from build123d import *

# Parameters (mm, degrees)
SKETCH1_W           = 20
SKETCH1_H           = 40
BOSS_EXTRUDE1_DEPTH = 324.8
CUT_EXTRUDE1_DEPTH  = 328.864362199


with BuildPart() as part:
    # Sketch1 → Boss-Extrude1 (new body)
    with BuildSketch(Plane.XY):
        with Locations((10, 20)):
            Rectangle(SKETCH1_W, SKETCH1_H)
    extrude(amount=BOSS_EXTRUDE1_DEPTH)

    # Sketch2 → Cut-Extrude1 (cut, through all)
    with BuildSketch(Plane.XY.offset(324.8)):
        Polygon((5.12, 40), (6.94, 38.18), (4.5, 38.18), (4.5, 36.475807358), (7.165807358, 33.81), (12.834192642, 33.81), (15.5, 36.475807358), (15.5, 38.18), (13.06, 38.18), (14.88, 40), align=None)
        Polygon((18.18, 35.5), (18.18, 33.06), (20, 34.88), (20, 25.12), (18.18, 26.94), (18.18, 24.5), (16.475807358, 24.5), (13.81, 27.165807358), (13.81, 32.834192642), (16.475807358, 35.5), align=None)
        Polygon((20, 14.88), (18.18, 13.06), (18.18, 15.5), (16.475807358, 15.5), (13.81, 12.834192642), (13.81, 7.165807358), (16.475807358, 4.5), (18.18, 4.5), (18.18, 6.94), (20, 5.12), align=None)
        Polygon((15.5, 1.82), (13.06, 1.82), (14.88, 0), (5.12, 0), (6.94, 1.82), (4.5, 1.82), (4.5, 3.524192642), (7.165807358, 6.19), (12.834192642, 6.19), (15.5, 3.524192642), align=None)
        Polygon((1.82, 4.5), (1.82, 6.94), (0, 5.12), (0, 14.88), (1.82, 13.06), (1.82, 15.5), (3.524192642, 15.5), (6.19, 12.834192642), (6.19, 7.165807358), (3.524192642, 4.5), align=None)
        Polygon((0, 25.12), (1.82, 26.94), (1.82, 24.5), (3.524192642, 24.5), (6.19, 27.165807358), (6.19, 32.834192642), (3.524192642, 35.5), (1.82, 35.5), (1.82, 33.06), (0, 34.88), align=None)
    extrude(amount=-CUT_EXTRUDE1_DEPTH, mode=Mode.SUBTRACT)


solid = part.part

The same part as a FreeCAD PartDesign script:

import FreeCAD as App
import Part
import Sketcher
from FreeCAD import Vector
Q = App.Units.Quantity


def add_polygon(sketch, points):
    """Adds a closed chain of lines whose ends are joined by coincident constraints."""
    first, n = sketch.GeometryCount, len(points)
    for a, b in zip(points, points[1:] + points[:1]):
        sketch.addGeometry(Part.LineSegment(App.Vector(*a, 0), App.Vector(*b, 0)), False)
    for i in range(n):
        sketch.addConstraint(Sketcher.Constraint("Coincident", first + i, 2, first + (i + 1) % n, 1))

doc = App.newDocument("Part")
body = doc.addObject("PartDesign::Body", "Body")

sketch1 = body.newObject("Sketcher::SketchObject", "Sketch")
sketch1.AttachmentSupport = (doc.getObject("XY_Plane"), [""])
sketch1.MapMode = "FlatFace"
add_polygon(sketch1, [(0, 40), (0, 0), (20, 0), (20, 40)])
sketch1.addConstraint([
    Sketcher.Constraint("Vertical", 0),
    Sketcher.Constraint("Horizontal", 1),
    Sketcher.Constraint("Vertical", 2),
    Sketcher.Constraint("Horizontal", 3),
    Sketcher.Constraint("Coincident", 0, 2, -1, 1),
    Sketcher.Constraint("DistanceX", 1, 1, 1, 2, Q("20 mm")),
    Sketcher.Constraint("DistanceY", 0, 2, 0, 1, Q("40 mm")),
])
pad1 = body.newObject("PartDesign::Pad", "Pad")
pad1.Profile = sketch1
pad1.Length = 324.8

sketch2 = body.newObject("Sketcher::SketchObject", "Sketch001")
sketch2.AttachmentSupport = (doc.getObject("XY_Plane"), [""])
sketch2.MapMode = "FlatFace"
sketch2.AttachmentOffset = App.Placement(Vector(0, 0, 324.8), App.Rotation())
add_polygon(sketch2, [(5.1, 40), (6.9, 38.2), (4.5, 38.2), (4.5, 36.5), (7.2, 33.8), (12.8, 33.8), (15.5, 36.5), (15.5, 38.2), (13.1, 38.2), (14.9, 40)])
add_polygon(sketch2, [(18.2, 33.1), (18.2, 35.5), (16.5, 35.5), (13.8, 32.8), (13.8, 27.2), (16.5, 24.5), (18.2, 24.5), (18.2, 26.9), (20, 25.1), (20, 34.9)])
add_polygon(sketch2, [(20, 14.9), (18.2, 13.1), (18.2, 15.5), (16.5, 15.5), (13.8, 12.8), (13.8, 7.2), (16.5, 4.5), (18.2, 4.5), (18.2, 6.9), (20, 5.1)])
add_polygon(sketch2, [(13.1, 1.8), (15.5, 1.8), (15.5, 3.5), (12.8, 6.2), (7.2, 6.2), (4.5, 3.5), (4.5, 1.8), (6.9, 1.8), (5.1, 0), (14.9, 0)])
add_polygon(sketch2, [(1.8, 6.9), (1.8, 4.5), (3.5, 4.5), (6.2, 7.2), (6.2, 12.8), (3.5, 15.5), (1.8, 15.5), (1.8, 13.1), (0, 14.9), (0, 5.1)])
add_polygon(sketch2, [(0, 25.1), (1.8, 26.9), (1.8, 24.5), (3.5, 24.5), (6.2, 27.2), (6.2, 32.8), (3.5, 35.5), (1.8, 35.5), (1.8, 33.1), (0, 34.9)])
sketch2.addConstraint([
    Sketcher.Constraint("Horizontal", 1),
    Sketcher.Constraint("Vertical", 2),
    Sketcher.Constraint("Horizontal", 4),
    Sketcher.Constraint("Vertical", 6),
    Sketcher.Constraint("Horizontal", 7),
    Sketcher.Constraint("Horizontal", 9),
    Sketcher.Constraint("Vertical", 10),
    Sketcher.Constraint("Horizontal", 11),
    Sketcher.Constraint("Vertical", 13),
    Sketcher.Constraint("Horizontal", 15),
    Sketcher.Constraint("Vertical", 16),
    Sketcher.Constraint("Vertical", 18),
    Sketcher.Constraint("Vertical", 21),
    Sketcher.Constraint("Horizontal", 22),
    Sketcher.Constraint("Vertical", 24),
    Sketcher.Constraint("Horizontal", 26),
    Sketcher.Constraint("Vertical", 27),
    Sketcher.Constraint("Vertical", 29),
    Sketcher.Constraint("Horizontal", 30),
    Sketcher.Constraint("Vertical", 31),
    Sketcher.Constraint("Horizontal", 33),
    Sketcher.Constraint("Vertical", 35),
    Sketcher.Constraint("Horizontal", 36),
    Sketcher.Constraint("Horizontal", 38),
    Sketcher.Constraint("Vertical", 40),
    Sketcher.Constraint("Horizontal", 41),
    Sketcher.Constraint("Vertical", 43),
    Sketcher.Constraint("Horizontal", 45),
    Sketcher.Constraint("Vertical", 46),
    Sketcher.Constraint("Vertical", 48),
    Sketcher.Constraint("Vertical", 51),
    Sketcher.Constraint("Horizontal", 52),
    Sketcher.Constraint("Vertical", 54),
    Sketcher.Constraint("Horizontal", 56),
    Sketcher.Constraint("Vertical", 57),
    Sketcher.Constraint("Vertical", 59),
    Sketcher.Constraint("PointOnObject", 37, 2, -1),
    Sketcher.Constraint("PointOnObject", 47, 2, -2),
    Sketcher.Constraint("PointOnObject", 58, 2, -2),
    Sketcher.Constraint("Parallel", 0, 3),
    Sketcher.Constraint("Perpendicular", 3, 5),
    Sketcher.Constraint("Parallel", 5, 8),
    Sketcher.Constraint("Parallel", 8, 12),
    Sketcher.Constraint("Perpendicular", 12, 14),
    Sketcher.Constraint("Parallel", 14, 17),
    Sketcher.Constraint("Perpendicular", 17, 19),
    Sketcher.Constraint("Parallel", 19, 20),
    Sketcher.Constraint("Parallel", 20, 23),
    Sketcher.Constraint("Perpendicular", 23, 25),
    Sketcher.Constraint("Parallel", 25, 28),
    Sketcher.Constraint("Parallel", 28, 32),
    Sketcher.Constraint("Perpendicular", 32, 34),
    Sketcher.Constraint("Parallel", 34, 37),
    Sketcher.Constraint("Perpendicular", 37, 39),
    Sketcher.Constraint("Perpendicular", 39, 42),
    Sketcher.Constraint("Perpendicular", 42, 44),
    Sketcher.Constraint("Parallel", 44, 47),
    Sketcher.Constraint("Perpendicular", 47, 49),
    Sketcher.Constraint("Parallel", 49, 50),
    Sketcher.Constraint("Parallel", 50, 53),
    Sketcher.Constraint("Perpendicular", 53, 55),
    Sketcher.Constraint("Parallel", 55, 58),
    Sketcher.Constraint("Horizontal", 2, 2, 5, 2),
    Sketcher.Constraint("Horizontal", 1, 2, 6, 2),
    Sketcher.Constraint("Horizontal", 31, 2, 34, 2),
    Sketcher.Constraint("Horizontal", 30, 2, 35, 2),
    Sketcher.Constraint("Horizontal", 26, 2, 40, 2),
    Sketcher.Constraint("Horizontal", 24, 2, 42, 2),
    Sketcher.Constraint("Horizontal", 23, 2, 43, 2),
    Sketcher.Constraint("Horizontal", 22, 2, 44, 2),
    Sketcher.Constraint("Horizontal", 20, 2, 46, 2),
    Sketcher.Constraint("Horizontal", 29, 2, 47, 2),
    Sketcher.Constraint("Horizontal", 28, 2, 48, 2),
    Sketcher.Constraint("Horizontal", 27, 2, 49, 2),
    Sketcher.Constraint("Horizontal", 16, 2, 50, 2),
    Sketcher.Constraint("Horizontal", 15, 2, 51, 2),
    Sketcher.Constraint("Horizontal", 13, 2, 53, 2),
    Sketcher.Constraint("Horizontal", 12, 2, 54, 2),
    Sketcher.Constraint("Horizontal", 11, 2, 55, 2),
    Sketcher.Constraint("Horizontal", 19, 2, 57, 2),
    Sketcher.Constraint("Horizontal", 18, 2, 58, 2),
    Sketcher.Constraint("Horizontal", 17, 2, 59, 2),
    Sketcher.Constraint("Vertical", 11, 2, 14, 2),
    Sketcher.Constraint("Vertical", 10, 2, 15, 2),
    Sketcher.Constraint("Vertical", 19, 2, 20, 2),
    Sketcher.Constraint("Vertical", 14, 2, 22, 2),
    Sketcher.Constraint("Vertical", 13, 2, 23, 2),
    Sketcher.Constraint("Vertical", 22, 2, 25, 2),
    Sketcher.Constraint("Vertical", 21, 2, 26, 2),
    Sketcher.Constraint("Vertical", 18, 2, 28, 2),
    Sketcher.Constraint("Vertical", 6, 2, 30, 2),
    Sketcher.Constraint("Vertical", 4, 2, 32, 2),
    Sketcher.Constraint("Vertical", 3, 2, 33, 2),
    Sketcher.Constraint("Vertical", 2, 2, 34, 2),
    Sketcher.Constraint("Vertical", 0, 2, 36, 2),
    Sketcher.Constraint("Vertical", 9, 2, 37, 2),
    Sketcher.Constraint("Vertical", 8, 2, 38, 2),
    Sketcher.Constraint("Vertical", 44, 2, 52, 2),
    Sketcher.Constraint("Equal", 1, 7),
    Sketcher.Constraint("Equal", 26, 41),
    Sketcher.Constraint("Equal", 56, 2),
    Sketcher.Constraint("Equal", 36, 10),
    Sketcher.Constraint("Equal", 33, 13),
    Sketcher.Constraint("Equal", 10, 16),
    Sketcher.Constraint("Equal", 38, 18),
    Sketcher.Constraint("Equal", 16, 21),
    Sketcher.Constraint("Equal", 13, 24),
    Sketcher.Constraint("Equal", 21, 27),
    Sketcher.Constraint("Equal", 6, 31),
    Sketcher.Constraint("Equal", 5, 12),
    Sketcher.Constraint("DistanceY", -1, 1, 8, 2, Q("40 mm")),
    Sketcher.Constraint("DistanceX", -1, 1, 17, 2, Q("20 mm")),
    Sketcher.Constraint("DistanceX", 2, 2, 5, 2, Q("11 mm")),
    Sketcher.Constraint("DistanceY", 21, 2, 15, 2, Q("9 mm")),
    Sketcher.Constraint("DistanceX", 1, 2, 1, 1, Q("2.44 mm")),
    Sketcher.Constraint("DistanceX", 9, 2, 9, 1, Q("9.76 mm")),
    Sketcher.Constraint("DistanceX", -1, 1, 1, 2, Q("4.5 mm")),
    Sketcher.Constraint("DistanceY", -1, 1, 10, 2, Q("35.5 mm")),
    Sketcher.Constraint("DistanceY", -1, 1, 3, 2, Q("33.81 mm")),
    Sketcher.Constraint("Distance", 3, Q("3.770021 mm")),
])
pocket1 = body.newObject("PartDesign::Pocket", "Pocket")
pocket1.Profile = sketch2
pocket1.Type = "ThroughAll"

doc.recompute()
